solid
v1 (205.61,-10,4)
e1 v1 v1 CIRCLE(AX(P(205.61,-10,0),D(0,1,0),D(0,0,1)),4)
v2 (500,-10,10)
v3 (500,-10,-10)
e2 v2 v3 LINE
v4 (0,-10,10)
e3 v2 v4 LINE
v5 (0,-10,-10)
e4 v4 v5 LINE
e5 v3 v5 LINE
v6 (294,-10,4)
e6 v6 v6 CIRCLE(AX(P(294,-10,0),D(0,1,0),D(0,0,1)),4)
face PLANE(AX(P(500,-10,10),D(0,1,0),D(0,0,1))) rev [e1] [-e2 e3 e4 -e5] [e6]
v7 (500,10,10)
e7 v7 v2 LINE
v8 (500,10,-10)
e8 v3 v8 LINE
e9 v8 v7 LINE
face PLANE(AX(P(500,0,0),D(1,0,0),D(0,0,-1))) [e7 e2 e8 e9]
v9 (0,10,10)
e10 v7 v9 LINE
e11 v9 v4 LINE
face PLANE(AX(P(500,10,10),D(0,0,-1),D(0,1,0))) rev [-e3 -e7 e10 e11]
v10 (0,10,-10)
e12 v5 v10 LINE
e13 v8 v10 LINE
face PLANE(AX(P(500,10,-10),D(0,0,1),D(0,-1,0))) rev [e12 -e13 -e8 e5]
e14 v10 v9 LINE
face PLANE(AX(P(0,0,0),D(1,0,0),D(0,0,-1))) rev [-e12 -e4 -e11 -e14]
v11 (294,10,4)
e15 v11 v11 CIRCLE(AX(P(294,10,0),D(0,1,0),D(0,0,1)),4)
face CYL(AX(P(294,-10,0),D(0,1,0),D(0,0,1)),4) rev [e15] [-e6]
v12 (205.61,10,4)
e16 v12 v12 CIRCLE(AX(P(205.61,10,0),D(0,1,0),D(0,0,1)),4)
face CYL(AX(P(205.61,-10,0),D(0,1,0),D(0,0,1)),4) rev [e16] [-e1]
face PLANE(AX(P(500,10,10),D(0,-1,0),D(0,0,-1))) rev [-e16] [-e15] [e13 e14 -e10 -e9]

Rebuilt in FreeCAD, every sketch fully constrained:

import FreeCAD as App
import Part
import Sketcher

doc = App.newDocument("Part")
body = doc.addObject("PartDesign::Body", "Body")

# Sketch on YZ plane
sketch1 = body.newObject("Sketcher::SketchObject", "Sketch")
sketch1.AttachmentSupport = (doc.getObject("YZ_Plane"), [""])
sketch1.MapMode = "FlatFace"
sketch1.addGeometry(Part.LineSegment(App.Vector(10, 10, 0), App.Vector(-10, 10, 0)), False)
sketch1.addGeometry(Part.LineSegment(App.Vector(-10, 10, 0), App.Vector(-10, -10, 0)), False)
sketch1.addGeometry(Part.LineSegment(App.Vector(-10, -10, 0), App.Vector(10, -10, 0)), False)
sketch1.addGeometry(Part.LineSegment(App.Vector(10, -10, 0), App.Vector(10, 10, 0)), False)
sketch1.addConstraint(Sketcher.Constraint("Coincident", 0, 2, 1, 1))
sketch1.addConstraint(Sketcher.Constraint("Coincident", 1, 2, 2, 1))
sketch1.addConstraint(Sketcher.Constraint("Coincident", 2, 2, 3, 1))
sketch1.addConstraint(Sketcher.Constraint("Coincident", 3, 2, 0, 1))
sketch1.addConstraint(Sketcher.Constraint("Horizontal", 0))
sketch1.addConstraint(Sketcher.Constraint("Vertical", 1))
sketch1.addConstraint(Sketcher.Constraint("Horizontal", 2))
sketch1.addConstraint(Sketcher.Constraint("Vertical", 3))
sketch1.addConstraint(Sketcher.Constraint("Symmetric", 0, 2, 2, 2, -1, 1))
sketch1.addConstraint(Sketcher.Constraint("Equal", 2, 1))
sketch1.addConstraint(Sketcher.Constraint("DistanceX", 0, 2, 0, 1, 20.0))
pad1 = body.newObject("PartDesign::Pad", "Pad")
pad1.Profile = sketch1
pad1.Length = 500

# Sketch on XZ plane
sketch2 = body.newObject("Sketcher::SketchObject", "Sketch001")
sketch2.AttachmentSupport = (doc.getObject("XZ_Plane"), [""])
sketch2.MapMode = "FlatFace"
sketch2.AttachmentOffset = App.Placement(App.Vector(0, 0, -10), App.Rotation())
sketch2.addGeometry(Part.Circle(App.Vector(205.61, 0, 0), App.Vector(0, 0, 1), 4), False)
sketch2.addGeometry(Part.Circle(App.Vector(294, 0, 0), App.Vector(0, 0, 1), 4), False)
sketch2.addConstraint(Sketcher.Constraint("Equal", 0, 1))
sketch2.addConstraint(Sketcher.Constraint("PointOnObject", 0, 3, -1))
sketch2.addConstraint(Sketcher.Constraint("PointOnObject", 1, 3, -1))
sketch2.addConstraint(Sketcher.Constraint("Diameter", 0, 8.0))
sketch2.addConstraint(Sketcher.Constraint("DistanceX", -1, 1, 1, 3, 294.0))
sketch2.addConstraint(Sketcher.Constraint("DistanceX", -1, 1, 0, 3, 205.61))
pocket1 = body.newObject("PartDesign::Pocket", "Pocket")
pocket1.Profile = sketch2
pocket1.Type = "ThroughAll"
pocket1.Reversed = True

doc.recompute()
